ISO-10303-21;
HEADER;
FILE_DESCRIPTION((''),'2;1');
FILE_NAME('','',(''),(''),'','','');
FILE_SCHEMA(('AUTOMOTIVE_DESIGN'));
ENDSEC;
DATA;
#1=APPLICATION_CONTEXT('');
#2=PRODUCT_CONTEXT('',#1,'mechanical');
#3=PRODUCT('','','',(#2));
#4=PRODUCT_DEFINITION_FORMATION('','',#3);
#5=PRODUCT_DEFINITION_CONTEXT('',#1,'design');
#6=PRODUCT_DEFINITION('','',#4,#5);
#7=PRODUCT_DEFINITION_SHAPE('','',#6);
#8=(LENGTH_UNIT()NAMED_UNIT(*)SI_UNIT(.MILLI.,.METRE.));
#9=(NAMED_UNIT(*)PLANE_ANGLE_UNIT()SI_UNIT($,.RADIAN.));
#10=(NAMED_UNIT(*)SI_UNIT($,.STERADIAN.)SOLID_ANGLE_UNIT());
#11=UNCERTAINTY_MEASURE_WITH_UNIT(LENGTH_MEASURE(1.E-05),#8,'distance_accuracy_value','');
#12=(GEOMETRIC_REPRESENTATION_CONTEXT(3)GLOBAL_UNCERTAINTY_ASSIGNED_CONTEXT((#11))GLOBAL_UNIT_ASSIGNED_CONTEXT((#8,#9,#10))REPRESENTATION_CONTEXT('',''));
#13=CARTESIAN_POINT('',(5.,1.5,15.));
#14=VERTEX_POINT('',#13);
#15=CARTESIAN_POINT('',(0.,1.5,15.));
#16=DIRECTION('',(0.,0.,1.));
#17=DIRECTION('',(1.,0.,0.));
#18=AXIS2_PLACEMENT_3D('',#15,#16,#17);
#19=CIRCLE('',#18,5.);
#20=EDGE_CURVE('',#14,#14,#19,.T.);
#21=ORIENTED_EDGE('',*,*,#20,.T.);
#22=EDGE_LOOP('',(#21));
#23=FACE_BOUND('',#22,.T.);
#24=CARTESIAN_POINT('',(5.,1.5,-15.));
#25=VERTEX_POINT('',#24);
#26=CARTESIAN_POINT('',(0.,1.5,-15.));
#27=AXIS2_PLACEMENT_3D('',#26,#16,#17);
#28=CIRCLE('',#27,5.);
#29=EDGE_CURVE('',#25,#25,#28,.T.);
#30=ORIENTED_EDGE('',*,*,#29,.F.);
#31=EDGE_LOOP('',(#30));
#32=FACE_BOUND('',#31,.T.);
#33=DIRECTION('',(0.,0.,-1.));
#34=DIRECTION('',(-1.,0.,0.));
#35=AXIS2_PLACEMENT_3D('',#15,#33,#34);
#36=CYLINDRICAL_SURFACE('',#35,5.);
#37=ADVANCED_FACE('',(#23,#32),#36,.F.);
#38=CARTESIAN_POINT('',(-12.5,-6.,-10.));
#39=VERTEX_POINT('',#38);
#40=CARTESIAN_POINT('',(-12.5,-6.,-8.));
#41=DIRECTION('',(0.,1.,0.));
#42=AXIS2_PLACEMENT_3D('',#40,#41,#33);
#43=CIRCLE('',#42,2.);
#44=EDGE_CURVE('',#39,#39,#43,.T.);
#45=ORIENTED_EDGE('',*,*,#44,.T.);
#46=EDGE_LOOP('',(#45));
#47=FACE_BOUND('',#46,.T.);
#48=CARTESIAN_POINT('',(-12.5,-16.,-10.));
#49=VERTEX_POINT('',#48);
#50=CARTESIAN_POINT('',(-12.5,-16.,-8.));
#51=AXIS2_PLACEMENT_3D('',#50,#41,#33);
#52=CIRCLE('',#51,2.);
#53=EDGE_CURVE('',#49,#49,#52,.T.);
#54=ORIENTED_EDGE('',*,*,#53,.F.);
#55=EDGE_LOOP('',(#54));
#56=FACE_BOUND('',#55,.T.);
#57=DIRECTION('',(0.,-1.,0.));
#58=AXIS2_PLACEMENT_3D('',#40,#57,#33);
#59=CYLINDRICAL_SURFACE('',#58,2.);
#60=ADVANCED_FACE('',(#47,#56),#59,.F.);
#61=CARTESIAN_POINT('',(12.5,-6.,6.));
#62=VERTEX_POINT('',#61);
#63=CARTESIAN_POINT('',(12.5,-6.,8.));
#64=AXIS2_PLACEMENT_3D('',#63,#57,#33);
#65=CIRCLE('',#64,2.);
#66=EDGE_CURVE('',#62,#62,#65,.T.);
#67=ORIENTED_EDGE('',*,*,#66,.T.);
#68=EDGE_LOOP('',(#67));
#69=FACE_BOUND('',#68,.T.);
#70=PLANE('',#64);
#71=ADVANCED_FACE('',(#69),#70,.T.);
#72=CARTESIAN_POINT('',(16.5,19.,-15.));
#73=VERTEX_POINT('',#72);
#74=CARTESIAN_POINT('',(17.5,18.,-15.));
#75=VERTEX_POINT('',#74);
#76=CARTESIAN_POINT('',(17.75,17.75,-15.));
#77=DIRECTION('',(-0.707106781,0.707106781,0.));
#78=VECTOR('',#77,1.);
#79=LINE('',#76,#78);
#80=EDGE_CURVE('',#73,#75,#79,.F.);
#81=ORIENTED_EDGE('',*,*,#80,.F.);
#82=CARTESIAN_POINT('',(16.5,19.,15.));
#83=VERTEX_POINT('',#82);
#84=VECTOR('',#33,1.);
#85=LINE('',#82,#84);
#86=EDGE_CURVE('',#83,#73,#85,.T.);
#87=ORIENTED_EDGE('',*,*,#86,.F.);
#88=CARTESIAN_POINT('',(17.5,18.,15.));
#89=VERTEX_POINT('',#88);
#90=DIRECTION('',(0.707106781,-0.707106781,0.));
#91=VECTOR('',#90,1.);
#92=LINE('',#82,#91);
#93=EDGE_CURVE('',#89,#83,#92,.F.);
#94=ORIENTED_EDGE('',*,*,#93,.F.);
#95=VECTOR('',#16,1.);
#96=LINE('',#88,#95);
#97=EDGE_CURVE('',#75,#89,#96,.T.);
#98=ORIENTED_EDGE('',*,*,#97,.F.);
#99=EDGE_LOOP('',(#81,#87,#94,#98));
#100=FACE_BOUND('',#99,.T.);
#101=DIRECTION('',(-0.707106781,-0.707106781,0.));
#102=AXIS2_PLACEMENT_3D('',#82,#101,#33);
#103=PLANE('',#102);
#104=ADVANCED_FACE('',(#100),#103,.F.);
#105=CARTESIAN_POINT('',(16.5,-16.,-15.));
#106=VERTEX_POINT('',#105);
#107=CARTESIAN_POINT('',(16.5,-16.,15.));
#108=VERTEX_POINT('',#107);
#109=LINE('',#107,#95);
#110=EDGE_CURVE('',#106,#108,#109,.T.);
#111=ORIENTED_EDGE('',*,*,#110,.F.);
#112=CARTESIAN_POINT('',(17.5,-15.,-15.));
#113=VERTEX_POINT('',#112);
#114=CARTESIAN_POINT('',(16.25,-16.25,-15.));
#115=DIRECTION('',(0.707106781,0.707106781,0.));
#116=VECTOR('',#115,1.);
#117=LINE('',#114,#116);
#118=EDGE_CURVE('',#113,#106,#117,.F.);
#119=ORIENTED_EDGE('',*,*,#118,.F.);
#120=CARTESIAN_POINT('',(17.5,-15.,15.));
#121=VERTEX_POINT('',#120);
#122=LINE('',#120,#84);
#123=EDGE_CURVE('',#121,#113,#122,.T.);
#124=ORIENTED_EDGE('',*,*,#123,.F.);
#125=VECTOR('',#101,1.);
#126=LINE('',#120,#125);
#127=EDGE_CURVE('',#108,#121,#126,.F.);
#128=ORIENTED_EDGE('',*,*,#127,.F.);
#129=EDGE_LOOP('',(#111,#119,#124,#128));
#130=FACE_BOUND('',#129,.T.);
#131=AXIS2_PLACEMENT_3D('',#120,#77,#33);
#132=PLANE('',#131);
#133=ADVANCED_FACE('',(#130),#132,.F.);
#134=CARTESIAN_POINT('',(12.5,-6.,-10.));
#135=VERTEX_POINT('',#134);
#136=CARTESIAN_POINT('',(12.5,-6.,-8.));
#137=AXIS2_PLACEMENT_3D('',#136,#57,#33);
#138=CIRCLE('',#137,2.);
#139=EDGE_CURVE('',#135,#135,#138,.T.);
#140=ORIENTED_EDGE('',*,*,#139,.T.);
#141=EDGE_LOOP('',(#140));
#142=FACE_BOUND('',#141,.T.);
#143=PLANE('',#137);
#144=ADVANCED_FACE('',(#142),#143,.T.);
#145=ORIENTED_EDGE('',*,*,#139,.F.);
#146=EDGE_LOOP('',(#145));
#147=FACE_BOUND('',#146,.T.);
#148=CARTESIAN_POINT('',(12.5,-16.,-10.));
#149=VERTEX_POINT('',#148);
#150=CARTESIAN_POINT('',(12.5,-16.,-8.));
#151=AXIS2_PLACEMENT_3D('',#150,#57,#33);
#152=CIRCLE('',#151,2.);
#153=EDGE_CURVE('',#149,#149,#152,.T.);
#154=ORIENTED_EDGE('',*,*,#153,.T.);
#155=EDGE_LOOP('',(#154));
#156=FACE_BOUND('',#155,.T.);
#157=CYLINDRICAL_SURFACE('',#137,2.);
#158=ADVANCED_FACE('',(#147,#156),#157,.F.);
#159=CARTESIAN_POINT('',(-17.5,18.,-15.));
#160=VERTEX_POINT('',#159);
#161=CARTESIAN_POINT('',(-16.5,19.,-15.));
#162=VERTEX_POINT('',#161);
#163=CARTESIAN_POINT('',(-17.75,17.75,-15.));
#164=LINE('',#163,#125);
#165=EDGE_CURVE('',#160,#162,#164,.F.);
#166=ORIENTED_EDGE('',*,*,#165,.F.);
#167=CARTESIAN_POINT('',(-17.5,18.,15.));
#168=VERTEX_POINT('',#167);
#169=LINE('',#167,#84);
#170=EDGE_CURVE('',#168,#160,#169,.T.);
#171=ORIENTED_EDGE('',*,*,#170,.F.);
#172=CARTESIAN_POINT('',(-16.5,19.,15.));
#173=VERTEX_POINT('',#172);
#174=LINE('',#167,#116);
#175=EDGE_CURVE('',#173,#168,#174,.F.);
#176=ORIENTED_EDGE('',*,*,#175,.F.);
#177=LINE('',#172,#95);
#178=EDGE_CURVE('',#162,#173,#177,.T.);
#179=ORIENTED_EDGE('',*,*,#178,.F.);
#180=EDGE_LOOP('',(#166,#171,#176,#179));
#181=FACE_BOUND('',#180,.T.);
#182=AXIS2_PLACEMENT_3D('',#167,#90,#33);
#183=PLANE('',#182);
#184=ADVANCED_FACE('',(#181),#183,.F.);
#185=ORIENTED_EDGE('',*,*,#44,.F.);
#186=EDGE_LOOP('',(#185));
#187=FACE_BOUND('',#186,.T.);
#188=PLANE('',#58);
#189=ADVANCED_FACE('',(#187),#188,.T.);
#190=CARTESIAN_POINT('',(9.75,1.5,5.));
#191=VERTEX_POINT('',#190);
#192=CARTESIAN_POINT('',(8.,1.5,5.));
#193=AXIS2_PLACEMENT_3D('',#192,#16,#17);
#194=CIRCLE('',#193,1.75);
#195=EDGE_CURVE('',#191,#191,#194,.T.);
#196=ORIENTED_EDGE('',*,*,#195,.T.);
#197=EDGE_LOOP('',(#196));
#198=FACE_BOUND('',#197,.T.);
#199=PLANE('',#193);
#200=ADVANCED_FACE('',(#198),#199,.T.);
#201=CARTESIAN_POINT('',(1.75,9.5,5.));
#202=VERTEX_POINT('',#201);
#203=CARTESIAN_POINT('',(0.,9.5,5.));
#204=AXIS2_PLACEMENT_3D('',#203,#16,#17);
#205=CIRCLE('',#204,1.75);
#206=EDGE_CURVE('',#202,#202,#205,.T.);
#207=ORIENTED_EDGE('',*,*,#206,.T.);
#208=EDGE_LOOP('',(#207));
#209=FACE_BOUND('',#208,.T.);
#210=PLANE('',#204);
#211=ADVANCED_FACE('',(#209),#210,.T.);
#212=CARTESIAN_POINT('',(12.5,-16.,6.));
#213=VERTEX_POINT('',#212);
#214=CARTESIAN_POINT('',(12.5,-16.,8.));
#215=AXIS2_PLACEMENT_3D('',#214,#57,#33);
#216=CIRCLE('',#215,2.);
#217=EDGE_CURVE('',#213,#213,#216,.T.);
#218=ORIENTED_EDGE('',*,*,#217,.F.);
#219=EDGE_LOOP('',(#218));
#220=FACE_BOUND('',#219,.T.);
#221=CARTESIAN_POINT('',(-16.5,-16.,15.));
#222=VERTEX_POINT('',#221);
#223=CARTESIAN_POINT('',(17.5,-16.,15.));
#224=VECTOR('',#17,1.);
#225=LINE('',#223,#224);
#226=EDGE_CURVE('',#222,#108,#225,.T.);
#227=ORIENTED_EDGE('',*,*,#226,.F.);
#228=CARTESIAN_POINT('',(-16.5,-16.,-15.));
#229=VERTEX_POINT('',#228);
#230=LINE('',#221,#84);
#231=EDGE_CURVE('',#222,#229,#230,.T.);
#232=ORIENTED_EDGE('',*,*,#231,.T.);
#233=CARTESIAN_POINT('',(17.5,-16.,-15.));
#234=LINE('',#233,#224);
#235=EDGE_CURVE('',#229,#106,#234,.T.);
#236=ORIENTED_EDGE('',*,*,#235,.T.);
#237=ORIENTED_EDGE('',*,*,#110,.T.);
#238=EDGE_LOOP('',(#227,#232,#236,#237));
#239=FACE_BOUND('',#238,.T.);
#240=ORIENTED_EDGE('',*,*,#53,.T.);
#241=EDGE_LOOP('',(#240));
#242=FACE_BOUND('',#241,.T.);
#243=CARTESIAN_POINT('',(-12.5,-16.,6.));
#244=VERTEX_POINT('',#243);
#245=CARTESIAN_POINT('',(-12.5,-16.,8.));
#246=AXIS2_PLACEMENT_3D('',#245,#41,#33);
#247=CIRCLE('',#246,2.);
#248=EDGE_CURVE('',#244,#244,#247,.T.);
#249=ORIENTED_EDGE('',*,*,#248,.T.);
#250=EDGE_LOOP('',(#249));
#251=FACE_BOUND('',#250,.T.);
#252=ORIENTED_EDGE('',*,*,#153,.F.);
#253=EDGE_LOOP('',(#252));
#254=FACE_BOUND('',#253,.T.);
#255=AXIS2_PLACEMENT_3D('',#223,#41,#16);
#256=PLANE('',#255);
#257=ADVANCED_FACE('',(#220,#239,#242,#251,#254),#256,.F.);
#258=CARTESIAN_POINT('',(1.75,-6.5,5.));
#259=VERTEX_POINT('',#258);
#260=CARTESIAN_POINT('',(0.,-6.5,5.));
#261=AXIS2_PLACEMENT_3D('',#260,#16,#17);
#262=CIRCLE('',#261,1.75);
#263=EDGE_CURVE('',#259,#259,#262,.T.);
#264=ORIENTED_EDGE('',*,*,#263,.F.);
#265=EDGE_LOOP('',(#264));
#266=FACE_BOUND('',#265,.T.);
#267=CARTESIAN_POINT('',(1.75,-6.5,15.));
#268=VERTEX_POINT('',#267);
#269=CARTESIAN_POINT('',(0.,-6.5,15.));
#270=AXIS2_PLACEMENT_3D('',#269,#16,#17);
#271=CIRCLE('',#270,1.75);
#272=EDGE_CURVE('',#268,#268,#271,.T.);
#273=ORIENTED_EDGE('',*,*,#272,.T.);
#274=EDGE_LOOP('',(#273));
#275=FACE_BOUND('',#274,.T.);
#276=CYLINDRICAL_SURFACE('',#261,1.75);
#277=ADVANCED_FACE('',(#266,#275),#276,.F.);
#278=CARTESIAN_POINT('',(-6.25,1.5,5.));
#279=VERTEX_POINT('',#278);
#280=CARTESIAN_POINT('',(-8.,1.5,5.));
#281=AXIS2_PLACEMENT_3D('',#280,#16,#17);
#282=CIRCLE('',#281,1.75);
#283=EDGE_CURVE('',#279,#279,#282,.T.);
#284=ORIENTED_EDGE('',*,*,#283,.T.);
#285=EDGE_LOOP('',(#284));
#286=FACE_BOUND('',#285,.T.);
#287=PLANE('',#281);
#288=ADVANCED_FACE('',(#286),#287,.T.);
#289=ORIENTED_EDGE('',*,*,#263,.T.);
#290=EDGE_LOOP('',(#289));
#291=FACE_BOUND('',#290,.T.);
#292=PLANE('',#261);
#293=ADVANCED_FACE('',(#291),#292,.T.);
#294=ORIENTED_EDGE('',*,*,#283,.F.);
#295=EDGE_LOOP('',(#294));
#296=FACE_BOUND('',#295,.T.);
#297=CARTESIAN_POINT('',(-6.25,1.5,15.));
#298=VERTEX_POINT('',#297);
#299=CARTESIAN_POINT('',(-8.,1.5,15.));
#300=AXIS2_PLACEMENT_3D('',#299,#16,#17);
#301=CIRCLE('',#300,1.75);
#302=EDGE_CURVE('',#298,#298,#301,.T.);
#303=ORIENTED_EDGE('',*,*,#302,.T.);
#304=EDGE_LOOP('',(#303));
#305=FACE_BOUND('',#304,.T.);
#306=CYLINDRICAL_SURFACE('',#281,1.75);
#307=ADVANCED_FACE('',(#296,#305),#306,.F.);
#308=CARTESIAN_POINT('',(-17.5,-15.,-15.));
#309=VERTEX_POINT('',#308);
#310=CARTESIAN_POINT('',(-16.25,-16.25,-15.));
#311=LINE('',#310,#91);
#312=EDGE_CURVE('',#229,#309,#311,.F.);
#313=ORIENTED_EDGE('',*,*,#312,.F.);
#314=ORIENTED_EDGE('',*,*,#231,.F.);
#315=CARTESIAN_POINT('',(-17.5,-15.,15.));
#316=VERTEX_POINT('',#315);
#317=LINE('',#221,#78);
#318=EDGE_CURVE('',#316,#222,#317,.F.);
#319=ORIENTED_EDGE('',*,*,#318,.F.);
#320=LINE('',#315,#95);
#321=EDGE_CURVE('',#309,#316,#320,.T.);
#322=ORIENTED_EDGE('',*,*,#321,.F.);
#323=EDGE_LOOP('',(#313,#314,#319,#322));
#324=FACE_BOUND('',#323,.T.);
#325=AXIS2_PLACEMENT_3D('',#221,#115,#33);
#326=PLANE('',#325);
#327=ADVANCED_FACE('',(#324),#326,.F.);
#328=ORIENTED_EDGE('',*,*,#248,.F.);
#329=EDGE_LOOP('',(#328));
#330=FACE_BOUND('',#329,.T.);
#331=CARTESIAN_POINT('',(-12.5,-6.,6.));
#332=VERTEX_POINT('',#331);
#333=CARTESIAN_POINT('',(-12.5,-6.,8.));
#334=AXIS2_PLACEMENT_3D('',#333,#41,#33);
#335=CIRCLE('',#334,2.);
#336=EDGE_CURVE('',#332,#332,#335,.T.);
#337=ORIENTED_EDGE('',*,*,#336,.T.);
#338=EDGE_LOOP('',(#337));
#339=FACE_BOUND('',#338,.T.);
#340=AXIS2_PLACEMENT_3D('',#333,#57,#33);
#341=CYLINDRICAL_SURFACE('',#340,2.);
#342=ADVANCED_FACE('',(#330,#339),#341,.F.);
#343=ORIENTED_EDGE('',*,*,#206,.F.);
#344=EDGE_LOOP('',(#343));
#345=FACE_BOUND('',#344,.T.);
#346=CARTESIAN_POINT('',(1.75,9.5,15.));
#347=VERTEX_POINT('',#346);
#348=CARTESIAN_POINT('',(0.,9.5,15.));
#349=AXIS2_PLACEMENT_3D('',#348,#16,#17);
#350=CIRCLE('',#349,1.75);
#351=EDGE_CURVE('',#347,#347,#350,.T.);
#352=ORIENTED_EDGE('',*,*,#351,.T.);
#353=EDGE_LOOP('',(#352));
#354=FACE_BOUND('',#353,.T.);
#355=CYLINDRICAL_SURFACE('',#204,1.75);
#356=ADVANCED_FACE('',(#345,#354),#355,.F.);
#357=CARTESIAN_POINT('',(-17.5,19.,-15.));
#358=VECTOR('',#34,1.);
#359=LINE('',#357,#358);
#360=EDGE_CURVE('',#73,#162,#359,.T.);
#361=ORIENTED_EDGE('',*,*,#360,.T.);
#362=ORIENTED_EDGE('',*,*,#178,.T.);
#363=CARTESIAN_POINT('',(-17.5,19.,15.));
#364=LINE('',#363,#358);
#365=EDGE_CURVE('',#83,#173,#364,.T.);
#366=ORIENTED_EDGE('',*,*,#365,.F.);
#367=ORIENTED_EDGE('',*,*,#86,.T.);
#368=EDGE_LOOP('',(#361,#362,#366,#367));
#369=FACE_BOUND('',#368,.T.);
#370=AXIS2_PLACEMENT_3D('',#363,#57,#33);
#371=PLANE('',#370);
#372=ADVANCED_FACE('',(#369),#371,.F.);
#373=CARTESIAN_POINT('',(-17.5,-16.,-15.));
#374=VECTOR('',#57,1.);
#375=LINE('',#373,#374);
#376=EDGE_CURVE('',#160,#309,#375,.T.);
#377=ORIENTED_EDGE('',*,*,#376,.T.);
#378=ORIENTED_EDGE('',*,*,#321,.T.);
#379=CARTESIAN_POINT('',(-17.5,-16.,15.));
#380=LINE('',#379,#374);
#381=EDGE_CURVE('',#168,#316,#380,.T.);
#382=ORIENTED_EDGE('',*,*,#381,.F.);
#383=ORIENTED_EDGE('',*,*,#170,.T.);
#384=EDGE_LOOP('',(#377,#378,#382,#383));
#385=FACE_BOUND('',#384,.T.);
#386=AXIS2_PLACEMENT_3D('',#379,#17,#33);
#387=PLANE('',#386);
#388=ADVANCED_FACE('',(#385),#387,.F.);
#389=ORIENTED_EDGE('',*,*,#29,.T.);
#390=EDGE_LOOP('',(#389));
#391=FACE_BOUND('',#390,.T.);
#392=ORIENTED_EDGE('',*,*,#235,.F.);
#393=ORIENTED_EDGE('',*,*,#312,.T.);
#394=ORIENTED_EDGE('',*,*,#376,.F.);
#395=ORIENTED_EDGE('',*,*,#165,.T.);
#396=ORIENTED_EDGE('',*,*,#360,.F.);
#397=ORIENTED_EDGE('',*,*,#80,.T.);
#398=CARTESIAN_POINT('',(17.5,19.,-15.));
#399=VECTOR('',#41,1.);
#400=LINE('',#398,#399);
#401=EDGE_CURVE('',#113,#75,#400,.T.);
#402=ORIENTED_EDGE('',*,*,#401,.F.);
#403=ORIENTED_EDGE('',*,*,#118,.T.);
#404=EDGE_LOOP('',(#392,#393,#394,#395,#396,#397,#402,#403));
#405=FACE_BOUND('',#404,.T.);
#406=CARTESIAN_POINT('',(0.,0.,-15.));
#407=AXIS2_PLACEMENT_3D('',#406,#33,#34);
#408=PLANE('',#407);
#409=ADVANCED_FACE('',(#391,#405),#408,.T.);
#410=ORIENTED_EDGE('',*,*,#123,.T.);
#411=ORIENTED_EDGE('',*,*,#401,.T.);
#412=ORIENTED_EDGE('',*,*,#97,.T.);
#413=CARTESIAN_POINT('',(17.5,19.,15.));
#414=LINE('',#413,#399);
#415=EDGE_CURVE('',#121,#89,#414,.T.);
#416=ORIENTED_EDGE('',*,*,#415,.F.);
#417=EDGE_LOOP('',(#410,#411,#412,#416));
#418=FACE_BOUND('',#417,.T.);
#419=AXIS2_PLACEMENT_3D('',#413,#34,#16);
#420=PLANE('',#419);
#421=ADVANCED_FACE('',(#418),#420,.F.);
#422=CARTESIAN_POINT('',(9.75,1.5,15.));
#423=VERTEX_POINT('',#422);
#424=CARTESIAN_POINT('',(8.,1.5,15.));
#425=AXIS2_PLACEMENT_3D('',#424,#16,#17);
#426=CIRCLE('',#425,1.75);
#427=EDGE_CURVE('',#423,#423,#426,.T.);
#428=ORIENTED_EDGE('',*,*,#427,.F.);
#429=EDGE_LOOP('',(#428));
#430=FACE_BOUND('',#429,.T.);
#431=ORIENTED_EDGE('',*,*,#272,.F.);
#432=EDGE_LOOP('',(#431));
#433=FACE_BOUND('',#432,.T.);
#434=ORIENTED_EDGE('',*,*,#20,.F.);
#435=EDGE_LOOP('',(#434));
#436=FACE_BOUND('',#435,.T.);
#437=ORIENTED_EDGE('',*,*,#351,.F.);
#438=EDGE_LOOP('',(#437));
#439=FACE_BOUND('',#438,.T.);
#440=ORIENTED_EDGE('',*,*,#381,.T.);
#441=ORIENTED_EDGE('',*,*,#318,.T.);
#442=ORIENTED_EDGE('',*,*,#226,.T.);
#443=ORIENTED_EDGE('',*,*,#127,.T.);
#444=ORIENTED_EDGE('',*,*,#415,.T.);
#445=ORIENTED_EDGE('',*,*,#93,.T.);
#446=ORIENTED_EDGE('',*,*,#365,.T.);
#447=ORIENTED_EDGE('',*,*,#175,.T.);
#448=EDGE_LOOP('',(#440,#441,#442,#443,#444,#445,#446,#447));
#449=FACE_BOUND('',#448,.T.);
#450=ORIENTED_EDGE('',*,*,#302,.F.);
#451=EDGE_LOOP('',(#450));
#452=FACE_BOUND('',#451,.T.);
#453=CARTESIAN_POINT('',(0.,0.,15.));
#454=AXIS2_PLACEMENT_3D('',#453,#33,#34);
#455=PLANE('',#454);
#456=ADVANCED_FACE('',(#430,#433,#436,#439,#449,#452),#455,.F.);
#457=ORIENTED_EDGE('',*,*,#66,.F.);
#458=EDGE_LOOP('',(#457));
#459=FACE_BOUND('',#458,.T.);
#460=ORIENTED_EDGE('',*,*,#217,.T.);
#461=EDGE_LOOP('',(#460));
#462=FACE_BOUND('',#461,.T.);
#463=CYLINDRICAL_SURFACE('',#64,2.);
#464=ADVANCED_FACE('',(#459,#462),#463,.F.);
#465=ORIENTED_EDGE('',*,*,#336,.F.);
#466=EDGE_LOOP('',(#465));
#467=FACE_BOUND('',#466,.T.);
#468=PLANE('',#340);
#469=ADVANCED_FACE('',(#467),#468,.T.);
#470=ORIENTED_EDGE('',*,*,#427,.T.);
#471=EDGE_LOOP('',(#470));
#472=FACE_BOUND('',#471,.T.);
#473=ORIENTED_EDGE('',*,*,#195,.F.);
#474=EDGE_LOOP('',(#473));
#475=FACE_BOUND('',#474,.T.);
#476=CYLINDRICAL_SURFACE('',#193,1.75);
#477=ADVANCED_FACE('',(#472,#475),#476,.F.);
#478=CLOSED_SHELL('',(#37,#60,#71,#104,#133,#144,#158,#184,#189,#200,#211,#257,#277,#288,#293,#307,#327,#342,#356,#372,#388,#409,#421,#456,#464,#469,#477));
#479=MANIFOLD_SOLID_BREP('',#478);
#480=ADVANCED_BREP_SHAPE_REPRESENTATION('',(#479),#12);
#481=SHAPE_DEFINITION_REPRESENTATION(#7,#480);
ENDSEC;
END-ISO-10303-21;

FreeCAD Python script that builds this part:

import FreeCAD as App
import Part
import Sketcher

V = App.Vector
Q = App.Units.Quantity


def edges_at(feature, points):
    """Names of the edges that pass closest to the given points."""
    edges = feature.Shape.Edges
    near = lambda p: min(range(len(edges)), key=lambda i: edges[i].distToShape(Part.Vertex(*p))[0])
    return sorted({f"Edge{near(p) + 1}" for p in points})

doc = App.newDocument("Part")
body = doc.addObject("PartDesign::Body", "Body")

sketch1 = body.newObject("Sketcher::SketchObject", "Sketch")
sketch1.AttachmentSupport = (doc.getObject("XY_Plane"), [""])
sketch1.MapMode = "FlatFace"
sketch1.addGeometry([
    Part.LineSegment(V(-18, 19, 0), V(-18, -16, 0)),
    Part.LineSegment(V(-18, -16, 0), V(18, -16, 0)),
    Part.LineSegment(V(18, -16, 0), V(18, 19, 0)),
    Part.LineSegment(V(18, 19, 0), V(-18, 19, 0)),
    Part.Circle(V(0, 2, 0), V(0, 0, 1), 5),
], False)
sketch1.addConstraint([
    Sketcher.Constraint("Coincident", 0, 2, 1, 1),
    Sketcher.Constraint("Coincident", 1, 2, 2, 1),
    Sketcher.Constraint("Coincident", 2, 2, 3, 1),
    Sketcher.Constraint("Coincident", 3, 2, 0, 1),
    Sketcher.Constraint("Vertical", 0),
    Sketcher.Constraint("Horizontal", 1),
    Sketcher.Constraint("Vertical", 2),
    Sketcher.Constraint("Horizontal", 3),
    Sketcher.Constraint("PointOnObject", 4, 3, -2),
    Sketcher.Constraint("Equal", 3, 0),
    Sketcher.Constraint("Diameter", 4, Q("10 mm")),
    Sketcher.Constraint("DistanceX", 1, 1, 1, 2, Q("35 mm")),
    Sketcher.Constraint("DistanceY", 0, 2, -1, 1, Q("16 mm")),
    Sketcher.Constraint("DistanceY", -1, 1, 4, 3, Q("1.5 mm")),
    Sketcher.Constraint("DistanceX", 0, 2, -1, 1, Q("17.5 mm")),
])
pad1 = body.newObject("PartDesign::Pad", "Pad")
pad1.Profile = sketch1
pad1.Length = 30
pad1.Midplane = True

sketch2 = body.newObject("Sketcher::SketchObject", "Sketch001")
sketch2.AttachmentSupport = (doc.getObject("XY_Plane"), [""])
sketch2.MapMode = "FlatFace"
sketch2.AttachmentOffset = App.Placement(V(0, 0, 15), App.Rotation())
sketch2.addGeometry([
    Part.Circle(V(0, 9.5, 0), V(0, 0, 1), 1.8),
    Part.Circle(V(0, -6.5, 0), V(0, 0, 1), 1.8),
    Part.Circle(V(8, 1.5, 0), V(0, 0, 1), 1.8),
    Part.Circle(V(-8, 1.5, 0), V(0, 0, 1), 1.8),
], False)
sketch2.addConstraint([
    Sketcher.Constraint("Equal", 0, 1),
    Sketcher.Constraint("Equal", 1, 2),
    Sketcher.Constraint("Equal", 2, 3),
    Sketcher.Constraint("Symmetric", 2, 3, 3, 3, -2),
    Sketcher.Constraint("PointOnObject", 0, 3, -2),
    Sketcher.Constraint("PointOnObject", 1, 3, -2),
    Sketcher.Constraint("Diameter", 0, Q("3.5 mm")),
    Sketcher.Constraint("DistanceX", -1, 1, 2, 3, Q("8 mm")),
    Sketcher.Constraint("DistanceY", 1, 3, 0, 3, Q("16 mm")),
    Sketcher.Constraint("DistanceY", 2, 3, 0, 3, Q("8 mm")),
    Sketcher.Constraint("DistanceY", -1, 1, 0, 3, Q("9.5 mm")),
])
pocket1 = body.newObject("PartDesign::Pocket", "Pocket")
pocket1.Profile = sketch2
pocket1.Length = 10
doc.recompute()

chamfer = body.newObject("PartDesign::Chamfer", "Chamfer")
chamfer.Base = (pocket1, edges_at(pocket1, [
    (-17.5, 19, 0),
    (17.5, 19, 0),
    (17.5, -16, 0),
    (-17.5, -16, 0),
]))
chamfer.Size = 1

sketch3 = body.newObject("Sketcher::SketchObject", "Sketch002")
sketch3.AttachmentSupport = (doc.getObject("XZ_Plane"), [""])
sketch3.MapMode = "FlatFace"
sketch3.AttachmentOffset = App.Placement(V(0, 0, 16), App.Rotation())
sketch3.addGeometry([
    Part.Circle(V(12.5, 8, 0), V(0, 0, 1), 2),
    Part.Circle(V(12.5, -8, 0), V(0, 0, 1), 2),
], False)
sketch3.addConstraint([
    Sketcher.Constraint("Equal", 0, 1),
    Sketcher.Constraint("Symmetric", 0, 3, 1, 3, -1),
    Sketcher.Constraint("Diameter", 0, Q("4 mm")),
    Sketcher.Constraint("DistanceY", -1, 1, 0, 3, Q("8 mm")),
    Sketcher.Constraint("DistanceX", -1, 1, 0, 3, Q("12.5 mm")),
])
pocket2 = body.newObject("PartDesign::Pocket", "Pocket001")
pocket2.Profile = sketch3
pocket2.Length = 10
doc.recompute()

mirrored = body.newObject("PartDesign::Mirrored", "Mirrored")
mirrored.Originals = [pocket2]
mirrored.MirrorPlane = (doc.getObject("YZ_Plane"), [""])
body.Tip = mirrored

doc.recompute()
